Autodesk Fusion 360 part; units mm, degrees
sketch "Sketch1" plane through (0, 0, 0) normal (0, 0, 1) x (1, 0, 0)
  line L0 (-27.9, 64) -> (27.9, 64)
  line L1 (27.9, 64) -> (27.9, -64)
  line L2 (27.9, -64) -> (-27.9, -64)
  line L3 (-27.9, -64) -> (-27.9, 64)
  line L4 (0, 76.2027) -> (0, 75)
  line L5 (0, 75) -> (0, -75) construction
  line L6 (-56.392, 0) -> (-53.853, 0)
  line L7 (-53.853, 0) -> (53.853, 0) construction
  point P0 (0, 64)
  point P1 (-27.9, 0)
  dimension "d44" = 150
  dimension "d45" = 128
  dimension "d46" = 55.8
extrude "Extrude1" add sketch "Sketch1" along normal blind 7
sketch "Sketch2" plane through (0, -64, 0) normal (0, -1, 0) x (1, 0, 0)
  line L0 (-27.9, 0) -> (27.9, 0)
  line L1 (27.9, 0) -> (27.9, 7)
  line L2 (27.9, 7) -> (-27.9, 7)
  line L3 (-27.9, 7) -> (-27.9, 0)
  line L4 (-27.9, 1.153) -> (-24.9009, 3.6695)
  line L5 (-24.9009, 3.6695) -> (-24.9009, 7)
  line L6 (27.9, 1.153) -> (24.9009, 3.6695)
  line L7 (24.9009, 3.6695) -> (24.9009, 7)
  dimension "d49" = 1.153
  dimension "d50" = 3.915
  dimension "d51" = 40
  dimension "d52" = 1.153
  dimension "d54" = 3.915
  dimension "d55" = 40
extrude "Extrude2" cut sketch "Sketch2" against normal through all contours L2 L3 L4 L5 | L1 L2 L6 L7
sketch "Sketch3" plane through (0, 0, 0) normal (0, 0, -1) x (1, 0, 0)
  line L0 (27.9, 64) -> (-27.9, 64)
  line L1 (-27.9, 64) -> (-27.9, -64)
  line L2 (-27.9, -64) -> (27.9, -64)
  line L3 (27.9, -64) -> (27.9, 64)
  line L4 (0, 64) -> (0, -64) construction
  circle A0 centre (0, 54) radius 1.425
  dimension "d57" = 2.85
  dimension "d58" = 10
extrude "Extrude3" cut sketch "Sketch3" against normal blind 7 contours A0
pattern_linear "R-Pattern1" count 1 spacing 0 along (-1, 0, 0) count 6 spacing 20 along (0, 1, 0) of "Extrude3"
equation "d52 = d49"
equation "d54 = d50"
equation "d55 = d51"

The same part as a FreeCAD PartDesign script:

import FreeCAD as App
import Part
import Sketcher
from FreeCAD import Vector
Q = App.Units.Quantity

doc = App.newDocument("Part")
params = doc.addObject("Spreadsheet::Sheet", "Params")
for row, (alias, value) in enumerate([
    ("sketch1_height", "128 mm"),
    ("sketch1_width", "55.8 mm"),
    ("pad1_length", "7 mm"),
    ("sketch3_diameter", "2.85 mm"),
    ("pocket2_length", "7 mm"),
    ("linearpattern_pitch", "20 mm"),
], start=1):
    params.set(f"A{row}", alias)
    params.set(f"B{row}", "=" + value)
    params.setAlias(f"B{row}", alias)

body = doc.addObject("PartDesign::Body", "Body")

sketch1 = body.newObject("Sketcher::SketchObject", "Sketch")
sketch1.AttachmentSupport = (doc.getObject("XY_Plane"), [""])
sketch1.MapMode = "FlatFace"
sketch1.addGeometry([
    Part.LineSegment(Vector(28, 64, 0), Vector(-28, 64, 0)),
    Part.LineSegment(Vector(-28, 64, 0), Vector(-28, -64, 0)),
    Part.LineSegment(Vector(-28, -64, 0), Vector(28, -64, 0)),
    Part.LineSegment(Vector(28, -64, 0), Vector(28, 64, 0)),
], False)
sketch1.addConstraint([
    Sketcher.Constraint("Coincident", 0, 2, 1, 1),
    Sketcher.Constraint("Coincident", 1, 2, 2, 1),
    Sketcher.Constraint("Coincident", 2, 2, 3, 1),
    Sketcher.Constraint("Coincident", 3, 2, 0, 1),
    Sketcher.Constraint("Horizontal", 0),
    Sketcher.Constraint("Vertical", 1),
    Sketcher.Constraint("Horizontal", 2),
    Sketcher.Constraint("Vertical", 3),
    Sketcher.Constraint("Symmetric", 0, 2, 2, 2, -1, 1),
    Sketcher.Constraint("DistanceY", 1, 2, 1, 1, 128.0),
    Sketcher.Constraint("DistanceX", 0, 2, 0, 1, 55.8),
])
sketch1.setExpression("Constraints[9]", "Params.sketch1_height")
sketch1.setExpression("Constraints[10]", "Params.sketch1_width")
pad1 = body.newObject("PartDesign::Pad", "Pad")
pad1.Profile = sketch1
pad1.setExpression("Length", "Params.pad1_length")

sketch2 = body.newObject("Sketcher::SketchObject", "Sketch001")
sketch2.AttachmentSupport = (doc.getObject("XZ_Plane"), [""])
sketch2.MapMode = "FlatFace"
sketch2.AttachmentOffset = App.Placement(Vector(0, 0, 64), App.Rotation())
sketch2.addGeometry([
    Part.LineSegment(Vector(-27.9, 7, 0), Vector(-27.9, 1.2, 0)),
    Part.LineSegment(Vector(-27.9, 1.2, 0), Vector(-24.9, 3.7, 0)),
    Part.LineSegment(Vector(-24.9, 3.7, 0), Vector(-24.9, 7, 0)),
    Part.LineSegment(Vector(-24.9, 7, 0), Vector(-27.9, 7, 0)),
    Part.LineSegment(Vector(24.9, 3.7, 0), Vector(27.9, 1.2, 0)),
    Part.LineSegment(Vector(27.9, 1.2, 0), Vector(27.9, 7, 0)),
    Part.LineSegment(Vector(27.9, 7, 0), Vector(24.9, 7, 0)),
    Part.LineSegment(Vector(24.9, 7, 0), Vector(24.9, 3.7, 0)),
], False)
sketch2.addConstraint([
    Sketcher.Constraint("Coincident", 0, 2, 1, 1),
    Sketcher.Constraint("Coincident", 1, 2, 2, 1),
    Sketcher.Constraint("Coincident", 2, 2, 3, 1),
    Sketcher.Constraint("Coincident", 3, 2, 0, 1),
    Sketcher.Constraint("Coincident", 4, 2, 5, 1),
    Sketcher.Constraint("Coincident", 5, 2, 6, 1),
    Sketcher.Constraint("Coincident", 6, 2, 7, 1),
    Sketcher.Constraint("Coincident", 7, 2, 4, 1),
    Sketcher.Constraint("Vertical", 0),
    Sketcher.Constraint("Vertical", 2),
    Sketcher.Constraint("Horizontal", 3),
    Sketcher.Constraint("Vertical", 5),
    Sketcher.Constraint("Horizontal", 6),
    Sketcher.Constraint("Vertical", 7),
    Sketcher.Constraint("Symmetric", 0, 2, 4, 2, -2),
    Sketcher.Constraint("Symmetric", 2, 2, 6, 2, -2),
    Sketcher.Constraint("Horizontal", 1, 2, 7, 2),
    Sketcher.Constraint("Angle", 1, Q("39.9995 deg")),
    Sketcher.Constraint("Distance", 1, 3.915),
    Sketcher.Constraint("DistanceY", -1, 1, 0, 2, 1.153),
    Sketcher.Constraint("DistanceY", -1, 1, 2, 2, 7.0),
    Sketcher.Constraint("DistanceX", 0, 2, -1, 1, 27.9),
])
pocket1 = body.newObject("PartDesign::Pocket", "Pocket")
pocket1.Profile = sketch2
pocket1.Type = "ThroughAll"

sketch3 = body.newObject("Sketcher::SketchObject", "Sketch002")
sketch3.AttachmentSupport = (doc.getObject("XY_Plane"), [""])
sketch3.MapMode = "FlatFace"
sketch3.addGeometry(Part.Circle(Vector(0, -54, 0), Vector(0, 0, 1), 1.4), False)
sketch3.addConstraint([
    Sketcher.Constraint("PointOnObject", 0, 3, -2),
    Sketcher.Constraint("Diameter", 0, 2.85),
    Sketcher.Constraint("DistanceY", 0, 3, -1, 1, 54.0),
])
sketch3.setExpression("Constraints[1]", "Params.sketch3_diameter")
pocket2 = body.newObject("PartDesign::Pocket", "Pocket001")
pocket2.Profile = sketch3
pocket2.setExpression("Length", "Params.pocket2_length")
pocket2.Reversed = True
doc.recompute()

linearpattern = body.newObject("PartDesign::LinearPattern", "LinearPattern")
linearpattern.Originals = [pocket2]
linearpattern.Direction = (doc.getObject("Y_Axis"), [""])
linearpattern.Mode = "offset"
linearpattern.setExpression("Offset", "Params.linearpattern_pitch")
linearpattern.Occurrences = 6
body.Tip = linearpattern

doc.recompute()
